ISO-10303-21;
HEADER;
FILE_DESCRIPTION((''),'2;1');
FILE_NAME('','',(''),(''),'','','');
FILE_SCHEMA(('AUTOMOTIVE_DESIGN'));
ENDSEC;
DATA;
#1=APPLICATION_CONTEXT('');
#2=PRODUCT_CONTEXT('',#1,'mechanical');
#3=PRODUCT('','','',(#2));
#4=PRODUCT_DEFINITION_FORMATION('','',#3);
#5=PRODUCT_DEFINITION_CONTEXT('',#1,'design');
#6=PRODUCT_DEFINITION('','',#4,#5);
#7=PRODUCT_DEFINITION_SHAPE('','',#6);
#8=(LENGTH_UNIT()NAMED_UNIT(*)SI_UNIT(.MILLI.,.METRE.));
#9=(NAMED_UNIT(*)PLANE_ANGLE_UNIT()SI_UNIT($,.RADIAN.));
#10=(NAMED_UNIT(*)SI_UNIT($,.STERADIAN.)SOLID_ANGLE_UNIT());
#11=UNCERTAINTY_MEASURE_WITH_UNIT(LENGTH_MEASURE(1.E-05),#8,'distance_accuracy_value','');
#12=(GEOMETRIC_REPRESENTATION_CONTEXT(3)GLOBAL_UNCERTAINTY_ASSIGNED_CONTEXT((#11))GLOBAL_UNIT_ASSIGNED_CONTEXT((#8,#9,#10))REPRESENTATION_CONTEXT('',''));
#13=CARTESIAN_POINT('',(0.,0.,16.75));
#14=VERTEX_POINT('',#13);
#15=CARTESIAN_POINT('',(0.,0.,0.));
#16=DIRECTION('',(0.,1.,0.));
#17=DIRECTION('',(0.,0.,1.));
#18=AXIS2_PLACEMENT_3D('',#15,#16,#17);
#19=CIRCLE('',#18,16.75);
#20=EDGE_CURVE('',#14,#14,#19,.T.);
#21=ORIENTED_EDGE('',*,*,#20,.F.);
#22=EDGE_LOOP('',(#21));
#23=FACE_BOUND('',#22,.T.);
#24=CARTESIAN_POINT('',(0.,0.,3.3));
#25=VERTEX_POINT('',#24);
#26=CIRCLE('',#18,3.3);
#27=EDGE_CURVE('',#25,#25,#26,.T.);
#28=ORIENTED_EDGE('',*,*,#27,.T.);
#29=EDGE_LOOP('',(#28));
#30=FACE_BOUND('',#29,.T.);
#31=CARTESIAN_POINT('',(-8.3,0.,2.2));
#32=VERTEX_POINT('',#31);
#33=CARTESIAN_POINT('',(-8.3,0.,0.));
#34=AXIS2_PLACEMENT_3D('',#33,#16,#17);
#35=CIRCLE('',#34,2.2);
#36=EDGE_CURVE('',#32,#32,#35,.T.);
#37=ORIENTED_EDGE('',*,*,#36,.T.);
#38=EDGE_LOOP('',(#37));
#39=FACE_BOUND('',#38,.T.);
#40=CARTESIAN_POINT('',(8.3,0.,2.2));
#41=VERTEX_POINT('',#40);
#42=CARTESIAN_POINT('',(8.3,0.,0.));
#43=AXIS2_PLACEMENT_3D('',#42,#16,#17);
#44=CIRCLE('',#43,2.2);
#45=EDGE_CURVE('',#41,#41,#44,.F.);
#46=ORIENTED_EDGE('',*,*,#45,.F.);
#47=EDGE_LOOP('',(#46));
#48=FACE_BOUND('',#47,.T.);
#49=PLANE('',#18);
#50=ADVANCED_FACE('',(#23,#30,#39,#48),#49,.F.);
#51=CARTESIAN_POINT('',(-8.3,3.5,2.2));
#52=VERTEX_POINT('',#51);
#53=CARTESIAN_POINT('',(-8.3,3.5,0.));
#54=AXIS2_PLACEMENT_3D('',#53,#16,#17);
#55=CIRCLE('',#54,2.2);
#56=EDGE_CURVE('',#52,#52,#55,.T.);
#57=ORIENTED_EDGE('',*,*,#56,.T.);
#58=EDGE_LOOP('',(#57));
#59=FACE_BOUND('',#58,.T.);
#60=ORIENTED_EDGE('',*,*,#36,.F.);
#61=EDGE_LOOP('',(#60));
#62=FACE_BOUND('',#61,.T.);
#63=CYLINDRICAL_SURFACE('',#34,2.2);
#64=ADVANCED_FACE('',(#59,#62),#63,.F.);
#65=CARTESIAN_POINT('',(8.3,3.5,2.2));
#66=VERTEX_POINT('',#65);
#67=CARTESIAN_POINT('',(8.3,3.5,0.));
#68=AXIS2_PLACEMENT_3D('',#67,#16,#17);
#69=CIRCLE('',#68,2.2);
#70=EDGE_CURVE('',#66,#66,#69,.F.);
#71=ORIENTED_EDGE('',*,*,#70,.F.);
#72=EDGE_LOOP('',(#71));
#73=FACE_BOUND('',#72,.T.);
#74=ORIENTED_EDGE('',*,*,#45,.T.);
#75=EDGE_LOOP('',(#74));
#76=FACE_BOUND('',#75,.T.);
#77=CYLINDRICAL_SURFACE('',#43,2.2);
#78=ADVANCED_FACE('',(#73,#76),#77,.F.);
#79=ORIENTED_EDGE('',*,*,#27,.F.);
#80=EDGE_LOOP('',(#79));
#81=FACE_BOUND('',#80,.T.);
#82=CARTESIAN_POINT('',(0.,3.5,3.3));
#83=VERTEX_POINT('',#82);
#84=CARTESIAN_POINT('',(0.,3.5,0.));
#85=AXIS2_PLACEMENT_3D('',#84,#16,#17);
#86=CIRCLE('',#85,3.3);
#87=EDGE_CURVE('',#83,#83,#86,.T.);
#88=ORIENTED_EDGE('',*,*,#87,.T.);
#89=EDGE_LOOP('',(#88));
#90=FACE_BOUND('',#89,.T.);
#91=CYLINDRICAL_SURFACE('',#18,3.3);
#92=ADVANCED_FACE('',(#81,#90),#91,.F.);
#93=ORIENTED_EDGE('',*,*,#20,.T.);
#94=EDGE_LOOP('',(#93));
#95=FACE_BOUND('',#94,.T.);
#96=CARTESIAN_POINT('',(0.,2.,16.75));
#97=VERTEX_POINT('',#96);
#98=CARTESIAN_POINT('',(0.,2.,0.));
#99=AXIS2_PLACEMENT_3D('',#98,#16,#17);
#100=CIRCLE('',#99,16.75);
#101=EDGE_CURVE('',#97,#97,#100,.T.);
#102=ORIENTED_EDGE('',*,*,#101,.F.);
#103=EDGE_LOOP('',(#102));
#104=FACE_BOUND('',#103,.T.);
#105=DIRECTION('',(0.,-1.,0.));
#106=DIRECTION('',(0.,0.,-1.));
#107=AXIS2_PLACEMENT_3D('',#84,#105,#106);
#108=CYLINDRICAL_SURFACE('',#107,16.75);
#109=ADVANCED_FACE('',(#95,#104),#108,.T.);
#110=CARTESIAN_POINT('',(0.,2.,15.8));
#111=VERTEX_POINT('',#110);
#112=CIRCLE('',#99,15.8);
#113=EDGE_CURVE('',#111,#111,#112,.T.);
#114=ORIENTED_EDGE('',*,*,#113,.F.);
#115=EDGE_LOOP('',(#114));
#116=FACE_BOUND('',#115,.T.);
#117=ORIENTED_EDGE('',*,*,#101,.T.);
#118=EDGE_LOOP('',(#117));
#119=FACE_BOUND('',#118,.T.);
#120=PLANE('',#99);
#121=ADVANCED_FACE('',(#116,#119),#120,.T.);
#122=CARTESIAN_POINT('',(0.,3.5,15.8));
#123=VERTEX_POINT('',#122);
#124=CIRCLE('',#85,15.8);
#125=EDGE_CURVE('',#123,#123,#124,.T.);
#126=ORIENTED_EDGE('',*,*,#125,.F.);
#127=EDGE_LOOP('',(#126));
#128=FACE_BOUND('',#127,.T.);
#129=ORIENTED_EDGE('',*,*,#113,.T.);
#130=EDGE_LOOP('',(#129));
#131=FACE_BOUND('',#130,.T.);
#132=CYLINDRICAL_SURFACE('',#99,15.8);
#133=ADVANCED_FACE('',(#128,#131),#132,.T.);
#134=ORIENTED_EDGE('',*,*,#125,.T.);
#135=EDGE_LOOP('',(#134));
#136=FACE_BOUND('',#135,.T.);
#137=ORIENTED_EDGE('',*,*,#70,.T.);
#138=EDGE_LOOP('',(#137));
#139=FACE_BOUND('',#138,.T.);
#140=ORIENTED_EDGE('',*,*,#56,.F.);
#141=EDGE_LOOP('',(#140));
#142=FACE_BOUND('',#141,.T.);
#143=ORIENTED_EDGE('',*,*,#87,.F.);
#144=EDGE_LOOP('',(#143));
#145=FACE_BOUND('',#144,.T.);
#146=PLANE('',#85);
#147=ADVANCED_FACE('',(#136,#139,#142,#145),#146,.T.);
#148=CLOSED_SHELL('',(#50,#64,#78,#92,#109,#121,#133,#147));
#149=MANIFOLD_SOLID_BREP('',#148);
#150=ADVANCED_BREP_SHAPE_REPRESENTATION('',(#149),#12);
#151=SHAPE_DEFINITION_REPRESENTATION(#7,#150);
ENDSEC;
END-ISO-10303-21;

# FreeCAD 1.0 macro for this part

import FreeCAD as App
import Part
import Sketcher
from FreeCAD import Vector
Q = App.Units.Quantity

doc = App.newDocument("Part")
body = doc.addObject("PartDesign::Body", "Body")

sketch1 = body.newObject("Sketcher::SketchObject", "Sketch")
sketch1.AttachmentSupport = (doc.getObject("XZ_Plane"), [""])
sketch1.MapMode = "FlatFace"
sketch1.addGeometry(Part.Circle(Vector(0, 0, 0), Vector(0, 0, 1), 17), False)
sketch1.addConstraint(Sketcher.Constraint("Coincident", 0, 3, -1, 1))
sketch1.addConstraint(Sketcher.Constraint("Diameter", 0, Q("33.5 mm")))
pad1 = body.newObject("PartDesign::Pad", "Pad")
pad1.Profile = sketch1
pad1.Length = 3.5
pad1.Reversed = True

sketch2 = body.newObject("Sketcher::SketchObject", "Sketch001")
sketch2.AttachmentSupport = (doc.getObject("XZ_Plane"), [""])
sketch2.MapMode = "FlatFace"
sketch2.AttachmentOffset = App.Placement(Vector(0, 0, -3.5), App.Rotation())
sketch2.addGeometry(Part.LineSegment(Vector(-23, -23, 0), Vector(-23, 23, 0)), False)
sketch2.addGeometry(Part.LineSegment(Vector(-23, 23, 0), Vector(23, 23, 0)), False)
sketch2.addGeometry(Part.LineSegment(Vector(23, 23, 0), Vector(23, -23, 0)), False)
sketch2.addGeometry(Part.LineSegment(Vector(23, -23, 0), Vector(-23, -23, 0)), False)
sketch2.addGeometry(Part.Circle(Vector(0, 0, 0), Vector(0, 0, 1), 16), False)
sketch2.addConstraint(Sketcher.Constraint("Coincident", 0, 2, 1, 1))
sketch2.addConstraint(Sketcher.Constraint("Coincident", 1, 2, 2, 1))
sketch2.addConstraint(Sketcher.Constraint("Coincident", 2, 2, 3, 1))
sketch2.addConstraint(Sketcher.Constraint("Coincident", 3, 2, 0, 1))
sketch2.addConstraint(Sketcher.Constraint("Vertical", 0))
sketch2.addConstraint(Sketcher.Constraint("Horizontal", 1))
sketch2.addConstraint(Sketcher.Constraint("Vertical", 2))
sketch2.addConstraint(Sketcher.Constraint("Horizontal", 3))
sketch2.addConstraint(Sketcher.Constraint("Coincident", 4, 3, -1, 1))
sketch2.addConstraint(Sketcher.Constraint("Symmetric", 0, 2, 2, 2, -1, 1))
sketch2.addConstraint(Sketcher.Constraint("Equal", 3, 0))
sketch2.addConstraint(Sketcher.Constraint("Diameter", 4, Q("31.6 mm")))
sketch2.addConstraint(Sketcher.Constraint("DistanceX", 1, 1, 1, 2, Q("45.002 mm")))
pocket1 = body.newObject("PartDesign::Pocket", "Pocket")
pocket1.Profile = sketch2
pocket1.Length = 1.5
pocket1.Reversed = True

sketch3 = body.newObject("Sketcher::SketchObject", "Sketch002")
sketch3.AttachmentSupport = (doc.getObject("XZ_Plane"), [""])
sketch3.MapMode = "FlatFace"
sketch3.AttachmentOffset = App.Placement(Vector(0, 0, -3.5), App.Rotation())
sketch3.addGeometry(Part.Circle(Vector(0, 0, 0), Vector(0, 0, 1), 3.3), False)
sketch3.addGeometry(Part.Circle(Vector(-8.3, 0, 0), Vector(0, 0, 1), 2.2), False)
sketch3.addGeometry(Part.Circle(Vector(8.3, 0, 0), Vector(0, 0, 1), 2.2), False)
sketch3.addConstraint(Sketcher.Constraint("Coincident", 0, 3, -1, 1))
sketch3.addConstraint(Sketcher.Constraint("Equal", 1, 2))
sketch3.addConstraint(Sketcher.Constraint("Symmetric", 1, 3, 2, 3, -1, 1))
sketch3.addConstraint(Sketcher.Constraint("PointOnObject", 1, 3, -1))
sketch3.addConstraint(Sketcher.Constraint("Diameter", 0, Q("6.6 mm")))
sketch3.addConstraint(Sketcher.Constraint("Diameter", 1, Q("4.4 mm")))
sketch3.addConstraint(Sketcher.Constraint("DistanceX", 1, 3, -1, 1, Q("8.3 mm")))
pocket2 = body.newObject("PartDesign::Pocket", "Pocket001")
pocket2.Profile = sketch3
pocket2.Type = "ThroughAll"
pocket2.Reversed = True

doc.recompute()
